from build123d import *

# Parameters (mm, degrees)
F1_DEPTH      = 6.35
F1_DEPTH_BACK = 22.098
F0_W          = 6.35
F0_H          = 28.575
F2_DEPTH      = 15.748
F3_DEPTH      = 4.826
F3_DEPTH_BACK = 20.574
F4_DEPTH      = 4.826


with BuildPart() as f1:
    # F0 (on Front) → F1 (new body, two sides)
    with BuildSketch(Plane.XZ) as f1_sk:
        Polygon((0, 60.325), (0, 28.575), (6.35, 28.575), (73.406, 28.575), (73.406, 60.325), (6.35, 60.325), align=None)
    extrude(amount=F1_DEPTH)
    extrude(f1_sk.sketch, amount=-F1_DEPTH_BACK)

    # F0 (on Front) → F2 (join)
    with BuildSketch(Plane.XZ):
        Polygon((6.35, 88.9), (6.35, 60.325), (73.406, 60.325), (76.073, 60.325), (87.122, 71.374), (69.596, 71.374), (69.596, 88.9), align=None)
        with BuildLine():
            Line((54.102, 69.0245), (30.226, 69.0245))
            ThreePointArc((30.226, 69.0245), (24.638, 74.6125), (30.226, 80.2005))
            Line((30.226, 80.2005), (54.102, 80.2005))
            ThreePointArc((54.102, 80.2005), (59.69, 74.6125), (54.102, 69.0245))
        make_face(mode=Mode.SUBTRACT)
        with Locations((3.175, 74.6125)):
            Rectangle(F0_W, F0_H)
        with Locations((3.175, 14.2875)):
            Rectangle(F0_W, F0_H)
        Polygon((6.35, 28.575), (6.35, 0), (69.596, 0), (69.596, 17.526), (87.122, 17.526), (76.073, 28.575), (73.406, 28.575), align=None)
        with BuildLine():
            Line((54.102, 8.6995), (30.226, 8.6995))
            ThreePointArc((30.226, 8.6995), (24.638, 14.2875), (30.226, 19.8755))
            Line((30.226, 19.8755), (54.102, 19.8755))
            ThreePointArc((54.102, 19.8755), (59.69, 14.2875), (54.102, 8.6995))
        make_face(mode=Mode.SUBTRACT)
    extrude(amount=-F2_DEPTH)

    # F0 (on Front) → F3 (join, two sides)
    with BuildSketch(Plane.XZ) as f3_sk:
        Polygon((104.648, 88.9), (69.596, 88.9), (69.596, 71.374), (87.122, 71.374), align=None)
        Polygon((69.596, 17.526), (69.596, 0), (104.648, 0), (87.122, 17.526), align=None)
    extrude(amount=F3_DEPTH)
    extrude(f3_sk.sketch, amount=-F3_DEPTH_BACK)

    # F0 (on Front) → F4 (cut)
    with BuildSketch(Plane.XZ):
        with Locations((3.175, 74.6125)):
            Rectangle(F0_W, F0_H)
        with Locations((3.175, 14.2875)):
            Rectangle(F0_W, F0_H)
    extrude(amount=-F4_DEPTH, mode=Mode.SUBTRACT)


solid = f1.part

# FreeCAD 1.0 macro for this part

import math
import FreeCAD as App
import Part
import Sketcher

V = App.Vector
Q = App.Units.Quantity


def add_polygon(sketch, points):
    """Adds a closed chain of lines whose ends are joined by coincident constraints."""
    first, n = sketch.GeometryCount, len(points)
    for a, b in zip(points, points[1:] + points[:1]):
        sketch.addGeometry(Part.LineSegment(App.Vector(*a, 0), App.Vector(*b, 0)), False)
    for i in range(n):
        sketch.addConstraint(Sketcher.Constraint("Coincident", first + i, 2, first + (i + 1) % n, 1))

doc = App.newDocument("Part")
params = doc.addObject("Spreadsheet::Sheet", "Params")
for row, (alias, value) in enumerate([
    ("sketch1_width", "2.89 in"),
    ("sketch1_height", "1.25 in"),
    ("pad1_length", "0.25 in"),
    ("pad1_length2", "0.87 in"),
    ("sketch2_radius", "0.22 in"),
    ("sketch2_width", "2.74 in"),
    ("sketch2_width2", "0.69 in"),
    ("sketch2_width3", "0.94 in"),
    ("sketch2_width4", "2.995 in"),
    ("pad2_length", "0.62 in"),
    ("sketch3_width", "1.38 in"),
    ("pad3_length", "0.19 in"),
    ("pad3_length2", "0.81 in"),
    ("sketch4_width", "0.25 in"),
    ("sketch4_height", "1.125 in"),
    ("pocket1_length", "0.19 in"),
], start=1):
    params.set(f"A{row}", alias)
    params.set(f"B{row}", "=" + value)
    params.setAlias(f"B{row}", alias)

body = doc.addObject("PartDesign::Body", "Body")

# Sketch on XZ plane
sketch1 = body.newObject("Sketcher::SketchObject", "Sketch")
sketch1.AttachmentSupport = (doc.getObject("XZ_Plane"), [""])
sketch1.MapMode = "FlatFace"
add_polygon(sketch1, [(0, 60), (0, 29), (73, 29), (73, 60)])  # lines 0-3
sketch1.addConstraint([
    Sketcher.Constraint("Vertical", 0),
    Sketcher.Constraint("Horizontal", 1),
    Sketcher.Constraint("Vertical", 2),
    Sketcher.Constraint("Horizontal", 3),
    Sketcher.Constraint("PointOnObject", 0, 2, -2),
    Sketcher.Constraint("DistanceX", 1, 1, 1, 2, Q("2.89 in")),
    Sketcher.Constraint("DistanceY", 0, 2, 0, 1, Q("1.25 in")),
    Sketcher.Constraint("DistanceY", -1, 1, 0, 2, Q("1.125 in")),
])
sketch1.setExpression("Constraints[9]", "Params.sketch1_width")
sketch1.setExpression("Constraints[10]", "Params.sketch1_height")
pad1 = body.newObject("PartDesign::Pad", "Pad")
pad1.Profile = sketch1
pad1.Type = "TwoLengths"
pad1.setExpression("Length", "Params.pad1_length")
pad1.setExpression("Length2", "Params.pad1_length2")

# Sketch on XZ plane
sketch2 = body.newObject("Sketcher::SketchObject", "Sketch001")
sketch2.AttachmentSupport = (doc.getObject("XZ_Plane"), [""])
sketch2.MapMode = "FlatFace"
add_polygon(sketch2, [(70, 89), (0, 89), (0, 60), (76, 60), (87, 71), (70, 71)])  # lines 0-5
sketch2.addGeometry(Part.ArcOfCircle(Part.Circle(V(54, 75, 0), V(0, 0, 1), 6), math.radians(-90), math.radians(90)), False)  # 6
sketch2.addGeometry(Part.LineSegment(V(54, 69, 0), V(30, 69, 0)), False)  # 7
sketch2.addGeometry(Part.ArcOfCircle(Part.Circle(V(30, 75, 0), V(0, 0, 1), 6), math.radians(90), math.radians(270)), False)  # 8
sketch2.addGeometry(Part.LineSegment(V(30, 80, 0), V(54, 80, 0)), False)  # 9
add_polygon(sketch2, [(0, 29), (0, 0), (70, 0), (70, 18), (87, 18), (76, 29)])  # lines 10-15
sketch2.addGeometry(Part.ArcOfCircle(Part.Circle(V(54, 14, 0), V(0, 0, 1), 6), math.radians(-90), math.radians(90)), False)  # 16
sketch2.addGeometry(Part.LineSegment(V(54, 9, 0), V(30, 9, 0)), False)  # 17
sketch2.addGeometry(Part.ArcOfCircle(Part.Circle(V(30, 14, 0), V(0, 0, 1), 6), math.radians(90), math.radians(270)), False)  # 18
sketch2.addGeometry(Part.LineSegment(V(30, 20, 0), V(54, 20, 0)), False)  # 19
sketch2.addConstraint([
    Sketcher.Constraint("Tangent", 6, 1, 7, 1),
    Sketcher.Constraint("Tangent", 7, 2, 8, 2),
    Sketcher.Constraint("Tangent", 8, 1, 9, 1),
    Sketcher.Constraint("Tangent", 9, 2, 6, 2),
    Sketcher.Constraint("Tangent", 16, 1, 17, 1),
    Sketcher.Constraint("Tangent", 17, 2, 18, 2),
    Sketcher.Constraint("Tangent", 18, 1, 19, 1),
    Sketcher.Constraint("Tangent", 19, 2, 16, 2),
    Sketcher.Constraint("Horizontal", 0),
    Sketcher.Constraint("Vertical", 1),
    Sketcher.Constraint("Horizontal", 2),
    Sketcher.Constraint("Horizontal", 4),
    Sketcher.Constraint("Vertical", 5),
    Sketcher.Constraint("Horizontal", 7),
    Sketcher.Constraint("Horizontal", 9),
    Sketcher.Constraint("Vertical", 10),
    Sketcher.Constraint("Horizontal", 11),
    Sketcher.Constraint("Vertical", 12),
    Sketcher.Constraint("Horizontal", 13),
    Sketcher.Constraint("Horizontal", 15),
    Sketcher.Constraint("Horizontal", 17),
    Sketcher.Constraint("Horizontal", 19),
    Sketcher.Constraint("Coincident", 10, 2, -1, 1),
    Sketcher.Constraint("Equal", 8, 16),
    Sketcher.Constraint("PointOnObject", 0, 2, -2),
    Sketcher.Constraint("Perpendicular", 3, 14),
    Sketcher.Constraint("Vertical", 6, 3, 16, 3),
    Sketcher.Constraint("Vertical", 8, 3, 18, 3),
    Sketcher.Constraint("Vertical", 5, 2, 11, 2),
    Sketcher.Constraint("Vertical", 3, 2, 13, 2),
    Sketcher.Constraint("Vertical", 2, 2, 14, 2),
    Sketcher.Constraint("Equal", 13, 5),
    Sketcher.Constraint("Equal", 1, 10),
    Sketcher.Constraint("Equal", 5, 12),
    Sketcher.Constraint("Radius", 6, Q("0.22 in")),
    Sketcher.Constraint("DistanceX", 0, 2, 0, 1, Q("2.74 in")),
    Sketcher.Constraint("DistanceX", 4, 2, 4, 1, Q("0.69 in")),
    Sketcher.Constraint("DistanceX", 7, 2, 7, 1, Q("0.94 in")),
    Sketcher.Constraint("DistanceY", -1, 1, 0, 2, Q("3.5 in")),
    Sketcher.Constraint("DistanceX", 6, 3, 3, 2, Q("1.3 in")),
    Sketcher.Constraint("DistanceX", 2, 1, 2, 2, Q("2.995 in")),
    Sketcher.Constraint("DistanceY", -1, 1, 6, 3, Q("2.9375 in")),
    Sketcher.Constraint("DistanceY", -1, 1, 16, 3, Q("0.5625 in")),
])
sketch2.setExpression("Constraints[46]", "Params.sketch2_radius")
sketch2.setExpression("Constraints[47]", "Params.sketch2_width")
sketch2.setExpression("Constraints[48]", "Params.sketch2_width2")
sketch2.setExpression("Constraints[49]", "Params.sketch2_width3")
sketch2.setExpression("Constraints[52]", "Params.sketch2_width4")
pad2 = body.newObject("PartDesign::Pad", "Pad001")
pad2.Profile = sketch2
pad2.setExpression("Length", "Params.pad2_length")
pad2.Reversed = True

# Sketch on XZ plane
sketch3 = body.newObject("Sketcher::SketchObject", "Sketch002")
sketch3.AttachmentSupport = (doc.getObject("XZ_Plane"), [""])
sketch3.MapMode = "FlatFace"
add_polygon(sketch3, [(105, 89), (70, 89), (70, 71), (87, 71)])  # lines 0-3
add_polygon(sketch3, [(70, 18), (70, 0), (105, 0), (87, 18)])  # lines 4-7
sketch3.addConstraint([
    Sketcher.Constraint("Horizontal", 0),
    Sketcher.Constraint("Vertical", 1),
    Sketcher.Constraint("Horizontal", 2),
    Sketcher.Constraint("Vertical", 4),
    Sketcher.Constraint("Horizontal", 5),
    Sketcher.Constraint("Horizontal", 7),
    Sketcher.Constraint("PointOnObject", 4, 2, -1),
    Sketcher.Constraint("Perpendicular", 3, 6),
    Sketcher.Constraint("Vertical", 1, 2, 4, 2),
    Sketcher.Constraint("Vertical", 3, 2, 5, 2),
    Sketcher.Constraint("Vertical", 2, 2, 6, 2),
    Sketcher.Constraint("Equal", 7, 1),
    Sketcher.Constraint("Equal", 1, 4),
    Sketcher.Constraint("DistanceX", 0, 2, 0, 1, Q("1.38 in")),
    Sketcher.Constraint("DistanceY", -1, 1, 0, 2, Q("3.5 in")),
    Sketcher.Constraint("DistanceX", -1, 1, 0, 2, Q("2.74 in")),
])
sketch3.setExpression("Constraints[21]", "Params.sketch3_width")
pad3 = body.newObject("PartDesign::Pad", "Pad002")
pad3.Profile = sketch3
pad3.Type = "TwoLengths"
pad3.setExpression("Length", "Params.pad3_length")
pad3.setExpression("Length2", "Params.pad3_length2")

# Sketch on XZ plane
sketch4 = body.newObject("Sketcher::SketchObject", "Sketch003")
sketch4.AttachmentSupport = (doc.getObject("XZ_Plane"), [""])
sketch4.MapMode = "FlatFace"
add_polygon(sketch4, [(0, 89), (0, 60), (6, 60), (6, 89)])  # lines 0-3
add_polygon(sketch4, [(0, 29), (0, 0), (6, 0), (6, 29)])  # lines 4-7
sketch4.addConstraint([
    Sketcher.Constraint("Vertical", 0),
    Sketcher.Constraint("Horizontal", 1),
    Sketcher.Constraint("Vertical", 2),
    Sketcher.Constraint("Horizontal", 3),
    Sketcher.Constraint("Vertical", 4),
    Sketcher.Constraint("Horizontal", 5),
    Sketcher.Constraint("Vertical", 6),
    Sketcher.Constraint("Horizontal", 7),
    Sketcher.Constraint("Coincident", 4, 2, -1, 1),
    Sketcher.Constraint("PointOnObject", 0, 2, -2),
    Sketcher.Constraint("Vertical", 2, 2, 5, 2),
    Sketcher.Constraint("Equal", 2, 4),
    Sketcher.Constraint("DistanceX", 1, 1, 1, 2, Q("0.25 in")),
    Sketcher.Constraint("DistanceY", -1, 1, 2, 2, Q("3.5 in")),
    Sketcher.Constraint("DistanceY", 0, 2, 0, 1, Q("1.125 in")),
])
sketch4.setExpression("Constraints[20]", "Params.sketch4_width")
sketch4.setExpression("Constraints[22]", "Params.sketch4_height")
pocket1 = body.newObject("PartDesign::Pocket", "Pocket")
pocket1.Profile = sketch4
pocket1.setExpression("Length", "Params.pocket1_length")

doc.recompute()
